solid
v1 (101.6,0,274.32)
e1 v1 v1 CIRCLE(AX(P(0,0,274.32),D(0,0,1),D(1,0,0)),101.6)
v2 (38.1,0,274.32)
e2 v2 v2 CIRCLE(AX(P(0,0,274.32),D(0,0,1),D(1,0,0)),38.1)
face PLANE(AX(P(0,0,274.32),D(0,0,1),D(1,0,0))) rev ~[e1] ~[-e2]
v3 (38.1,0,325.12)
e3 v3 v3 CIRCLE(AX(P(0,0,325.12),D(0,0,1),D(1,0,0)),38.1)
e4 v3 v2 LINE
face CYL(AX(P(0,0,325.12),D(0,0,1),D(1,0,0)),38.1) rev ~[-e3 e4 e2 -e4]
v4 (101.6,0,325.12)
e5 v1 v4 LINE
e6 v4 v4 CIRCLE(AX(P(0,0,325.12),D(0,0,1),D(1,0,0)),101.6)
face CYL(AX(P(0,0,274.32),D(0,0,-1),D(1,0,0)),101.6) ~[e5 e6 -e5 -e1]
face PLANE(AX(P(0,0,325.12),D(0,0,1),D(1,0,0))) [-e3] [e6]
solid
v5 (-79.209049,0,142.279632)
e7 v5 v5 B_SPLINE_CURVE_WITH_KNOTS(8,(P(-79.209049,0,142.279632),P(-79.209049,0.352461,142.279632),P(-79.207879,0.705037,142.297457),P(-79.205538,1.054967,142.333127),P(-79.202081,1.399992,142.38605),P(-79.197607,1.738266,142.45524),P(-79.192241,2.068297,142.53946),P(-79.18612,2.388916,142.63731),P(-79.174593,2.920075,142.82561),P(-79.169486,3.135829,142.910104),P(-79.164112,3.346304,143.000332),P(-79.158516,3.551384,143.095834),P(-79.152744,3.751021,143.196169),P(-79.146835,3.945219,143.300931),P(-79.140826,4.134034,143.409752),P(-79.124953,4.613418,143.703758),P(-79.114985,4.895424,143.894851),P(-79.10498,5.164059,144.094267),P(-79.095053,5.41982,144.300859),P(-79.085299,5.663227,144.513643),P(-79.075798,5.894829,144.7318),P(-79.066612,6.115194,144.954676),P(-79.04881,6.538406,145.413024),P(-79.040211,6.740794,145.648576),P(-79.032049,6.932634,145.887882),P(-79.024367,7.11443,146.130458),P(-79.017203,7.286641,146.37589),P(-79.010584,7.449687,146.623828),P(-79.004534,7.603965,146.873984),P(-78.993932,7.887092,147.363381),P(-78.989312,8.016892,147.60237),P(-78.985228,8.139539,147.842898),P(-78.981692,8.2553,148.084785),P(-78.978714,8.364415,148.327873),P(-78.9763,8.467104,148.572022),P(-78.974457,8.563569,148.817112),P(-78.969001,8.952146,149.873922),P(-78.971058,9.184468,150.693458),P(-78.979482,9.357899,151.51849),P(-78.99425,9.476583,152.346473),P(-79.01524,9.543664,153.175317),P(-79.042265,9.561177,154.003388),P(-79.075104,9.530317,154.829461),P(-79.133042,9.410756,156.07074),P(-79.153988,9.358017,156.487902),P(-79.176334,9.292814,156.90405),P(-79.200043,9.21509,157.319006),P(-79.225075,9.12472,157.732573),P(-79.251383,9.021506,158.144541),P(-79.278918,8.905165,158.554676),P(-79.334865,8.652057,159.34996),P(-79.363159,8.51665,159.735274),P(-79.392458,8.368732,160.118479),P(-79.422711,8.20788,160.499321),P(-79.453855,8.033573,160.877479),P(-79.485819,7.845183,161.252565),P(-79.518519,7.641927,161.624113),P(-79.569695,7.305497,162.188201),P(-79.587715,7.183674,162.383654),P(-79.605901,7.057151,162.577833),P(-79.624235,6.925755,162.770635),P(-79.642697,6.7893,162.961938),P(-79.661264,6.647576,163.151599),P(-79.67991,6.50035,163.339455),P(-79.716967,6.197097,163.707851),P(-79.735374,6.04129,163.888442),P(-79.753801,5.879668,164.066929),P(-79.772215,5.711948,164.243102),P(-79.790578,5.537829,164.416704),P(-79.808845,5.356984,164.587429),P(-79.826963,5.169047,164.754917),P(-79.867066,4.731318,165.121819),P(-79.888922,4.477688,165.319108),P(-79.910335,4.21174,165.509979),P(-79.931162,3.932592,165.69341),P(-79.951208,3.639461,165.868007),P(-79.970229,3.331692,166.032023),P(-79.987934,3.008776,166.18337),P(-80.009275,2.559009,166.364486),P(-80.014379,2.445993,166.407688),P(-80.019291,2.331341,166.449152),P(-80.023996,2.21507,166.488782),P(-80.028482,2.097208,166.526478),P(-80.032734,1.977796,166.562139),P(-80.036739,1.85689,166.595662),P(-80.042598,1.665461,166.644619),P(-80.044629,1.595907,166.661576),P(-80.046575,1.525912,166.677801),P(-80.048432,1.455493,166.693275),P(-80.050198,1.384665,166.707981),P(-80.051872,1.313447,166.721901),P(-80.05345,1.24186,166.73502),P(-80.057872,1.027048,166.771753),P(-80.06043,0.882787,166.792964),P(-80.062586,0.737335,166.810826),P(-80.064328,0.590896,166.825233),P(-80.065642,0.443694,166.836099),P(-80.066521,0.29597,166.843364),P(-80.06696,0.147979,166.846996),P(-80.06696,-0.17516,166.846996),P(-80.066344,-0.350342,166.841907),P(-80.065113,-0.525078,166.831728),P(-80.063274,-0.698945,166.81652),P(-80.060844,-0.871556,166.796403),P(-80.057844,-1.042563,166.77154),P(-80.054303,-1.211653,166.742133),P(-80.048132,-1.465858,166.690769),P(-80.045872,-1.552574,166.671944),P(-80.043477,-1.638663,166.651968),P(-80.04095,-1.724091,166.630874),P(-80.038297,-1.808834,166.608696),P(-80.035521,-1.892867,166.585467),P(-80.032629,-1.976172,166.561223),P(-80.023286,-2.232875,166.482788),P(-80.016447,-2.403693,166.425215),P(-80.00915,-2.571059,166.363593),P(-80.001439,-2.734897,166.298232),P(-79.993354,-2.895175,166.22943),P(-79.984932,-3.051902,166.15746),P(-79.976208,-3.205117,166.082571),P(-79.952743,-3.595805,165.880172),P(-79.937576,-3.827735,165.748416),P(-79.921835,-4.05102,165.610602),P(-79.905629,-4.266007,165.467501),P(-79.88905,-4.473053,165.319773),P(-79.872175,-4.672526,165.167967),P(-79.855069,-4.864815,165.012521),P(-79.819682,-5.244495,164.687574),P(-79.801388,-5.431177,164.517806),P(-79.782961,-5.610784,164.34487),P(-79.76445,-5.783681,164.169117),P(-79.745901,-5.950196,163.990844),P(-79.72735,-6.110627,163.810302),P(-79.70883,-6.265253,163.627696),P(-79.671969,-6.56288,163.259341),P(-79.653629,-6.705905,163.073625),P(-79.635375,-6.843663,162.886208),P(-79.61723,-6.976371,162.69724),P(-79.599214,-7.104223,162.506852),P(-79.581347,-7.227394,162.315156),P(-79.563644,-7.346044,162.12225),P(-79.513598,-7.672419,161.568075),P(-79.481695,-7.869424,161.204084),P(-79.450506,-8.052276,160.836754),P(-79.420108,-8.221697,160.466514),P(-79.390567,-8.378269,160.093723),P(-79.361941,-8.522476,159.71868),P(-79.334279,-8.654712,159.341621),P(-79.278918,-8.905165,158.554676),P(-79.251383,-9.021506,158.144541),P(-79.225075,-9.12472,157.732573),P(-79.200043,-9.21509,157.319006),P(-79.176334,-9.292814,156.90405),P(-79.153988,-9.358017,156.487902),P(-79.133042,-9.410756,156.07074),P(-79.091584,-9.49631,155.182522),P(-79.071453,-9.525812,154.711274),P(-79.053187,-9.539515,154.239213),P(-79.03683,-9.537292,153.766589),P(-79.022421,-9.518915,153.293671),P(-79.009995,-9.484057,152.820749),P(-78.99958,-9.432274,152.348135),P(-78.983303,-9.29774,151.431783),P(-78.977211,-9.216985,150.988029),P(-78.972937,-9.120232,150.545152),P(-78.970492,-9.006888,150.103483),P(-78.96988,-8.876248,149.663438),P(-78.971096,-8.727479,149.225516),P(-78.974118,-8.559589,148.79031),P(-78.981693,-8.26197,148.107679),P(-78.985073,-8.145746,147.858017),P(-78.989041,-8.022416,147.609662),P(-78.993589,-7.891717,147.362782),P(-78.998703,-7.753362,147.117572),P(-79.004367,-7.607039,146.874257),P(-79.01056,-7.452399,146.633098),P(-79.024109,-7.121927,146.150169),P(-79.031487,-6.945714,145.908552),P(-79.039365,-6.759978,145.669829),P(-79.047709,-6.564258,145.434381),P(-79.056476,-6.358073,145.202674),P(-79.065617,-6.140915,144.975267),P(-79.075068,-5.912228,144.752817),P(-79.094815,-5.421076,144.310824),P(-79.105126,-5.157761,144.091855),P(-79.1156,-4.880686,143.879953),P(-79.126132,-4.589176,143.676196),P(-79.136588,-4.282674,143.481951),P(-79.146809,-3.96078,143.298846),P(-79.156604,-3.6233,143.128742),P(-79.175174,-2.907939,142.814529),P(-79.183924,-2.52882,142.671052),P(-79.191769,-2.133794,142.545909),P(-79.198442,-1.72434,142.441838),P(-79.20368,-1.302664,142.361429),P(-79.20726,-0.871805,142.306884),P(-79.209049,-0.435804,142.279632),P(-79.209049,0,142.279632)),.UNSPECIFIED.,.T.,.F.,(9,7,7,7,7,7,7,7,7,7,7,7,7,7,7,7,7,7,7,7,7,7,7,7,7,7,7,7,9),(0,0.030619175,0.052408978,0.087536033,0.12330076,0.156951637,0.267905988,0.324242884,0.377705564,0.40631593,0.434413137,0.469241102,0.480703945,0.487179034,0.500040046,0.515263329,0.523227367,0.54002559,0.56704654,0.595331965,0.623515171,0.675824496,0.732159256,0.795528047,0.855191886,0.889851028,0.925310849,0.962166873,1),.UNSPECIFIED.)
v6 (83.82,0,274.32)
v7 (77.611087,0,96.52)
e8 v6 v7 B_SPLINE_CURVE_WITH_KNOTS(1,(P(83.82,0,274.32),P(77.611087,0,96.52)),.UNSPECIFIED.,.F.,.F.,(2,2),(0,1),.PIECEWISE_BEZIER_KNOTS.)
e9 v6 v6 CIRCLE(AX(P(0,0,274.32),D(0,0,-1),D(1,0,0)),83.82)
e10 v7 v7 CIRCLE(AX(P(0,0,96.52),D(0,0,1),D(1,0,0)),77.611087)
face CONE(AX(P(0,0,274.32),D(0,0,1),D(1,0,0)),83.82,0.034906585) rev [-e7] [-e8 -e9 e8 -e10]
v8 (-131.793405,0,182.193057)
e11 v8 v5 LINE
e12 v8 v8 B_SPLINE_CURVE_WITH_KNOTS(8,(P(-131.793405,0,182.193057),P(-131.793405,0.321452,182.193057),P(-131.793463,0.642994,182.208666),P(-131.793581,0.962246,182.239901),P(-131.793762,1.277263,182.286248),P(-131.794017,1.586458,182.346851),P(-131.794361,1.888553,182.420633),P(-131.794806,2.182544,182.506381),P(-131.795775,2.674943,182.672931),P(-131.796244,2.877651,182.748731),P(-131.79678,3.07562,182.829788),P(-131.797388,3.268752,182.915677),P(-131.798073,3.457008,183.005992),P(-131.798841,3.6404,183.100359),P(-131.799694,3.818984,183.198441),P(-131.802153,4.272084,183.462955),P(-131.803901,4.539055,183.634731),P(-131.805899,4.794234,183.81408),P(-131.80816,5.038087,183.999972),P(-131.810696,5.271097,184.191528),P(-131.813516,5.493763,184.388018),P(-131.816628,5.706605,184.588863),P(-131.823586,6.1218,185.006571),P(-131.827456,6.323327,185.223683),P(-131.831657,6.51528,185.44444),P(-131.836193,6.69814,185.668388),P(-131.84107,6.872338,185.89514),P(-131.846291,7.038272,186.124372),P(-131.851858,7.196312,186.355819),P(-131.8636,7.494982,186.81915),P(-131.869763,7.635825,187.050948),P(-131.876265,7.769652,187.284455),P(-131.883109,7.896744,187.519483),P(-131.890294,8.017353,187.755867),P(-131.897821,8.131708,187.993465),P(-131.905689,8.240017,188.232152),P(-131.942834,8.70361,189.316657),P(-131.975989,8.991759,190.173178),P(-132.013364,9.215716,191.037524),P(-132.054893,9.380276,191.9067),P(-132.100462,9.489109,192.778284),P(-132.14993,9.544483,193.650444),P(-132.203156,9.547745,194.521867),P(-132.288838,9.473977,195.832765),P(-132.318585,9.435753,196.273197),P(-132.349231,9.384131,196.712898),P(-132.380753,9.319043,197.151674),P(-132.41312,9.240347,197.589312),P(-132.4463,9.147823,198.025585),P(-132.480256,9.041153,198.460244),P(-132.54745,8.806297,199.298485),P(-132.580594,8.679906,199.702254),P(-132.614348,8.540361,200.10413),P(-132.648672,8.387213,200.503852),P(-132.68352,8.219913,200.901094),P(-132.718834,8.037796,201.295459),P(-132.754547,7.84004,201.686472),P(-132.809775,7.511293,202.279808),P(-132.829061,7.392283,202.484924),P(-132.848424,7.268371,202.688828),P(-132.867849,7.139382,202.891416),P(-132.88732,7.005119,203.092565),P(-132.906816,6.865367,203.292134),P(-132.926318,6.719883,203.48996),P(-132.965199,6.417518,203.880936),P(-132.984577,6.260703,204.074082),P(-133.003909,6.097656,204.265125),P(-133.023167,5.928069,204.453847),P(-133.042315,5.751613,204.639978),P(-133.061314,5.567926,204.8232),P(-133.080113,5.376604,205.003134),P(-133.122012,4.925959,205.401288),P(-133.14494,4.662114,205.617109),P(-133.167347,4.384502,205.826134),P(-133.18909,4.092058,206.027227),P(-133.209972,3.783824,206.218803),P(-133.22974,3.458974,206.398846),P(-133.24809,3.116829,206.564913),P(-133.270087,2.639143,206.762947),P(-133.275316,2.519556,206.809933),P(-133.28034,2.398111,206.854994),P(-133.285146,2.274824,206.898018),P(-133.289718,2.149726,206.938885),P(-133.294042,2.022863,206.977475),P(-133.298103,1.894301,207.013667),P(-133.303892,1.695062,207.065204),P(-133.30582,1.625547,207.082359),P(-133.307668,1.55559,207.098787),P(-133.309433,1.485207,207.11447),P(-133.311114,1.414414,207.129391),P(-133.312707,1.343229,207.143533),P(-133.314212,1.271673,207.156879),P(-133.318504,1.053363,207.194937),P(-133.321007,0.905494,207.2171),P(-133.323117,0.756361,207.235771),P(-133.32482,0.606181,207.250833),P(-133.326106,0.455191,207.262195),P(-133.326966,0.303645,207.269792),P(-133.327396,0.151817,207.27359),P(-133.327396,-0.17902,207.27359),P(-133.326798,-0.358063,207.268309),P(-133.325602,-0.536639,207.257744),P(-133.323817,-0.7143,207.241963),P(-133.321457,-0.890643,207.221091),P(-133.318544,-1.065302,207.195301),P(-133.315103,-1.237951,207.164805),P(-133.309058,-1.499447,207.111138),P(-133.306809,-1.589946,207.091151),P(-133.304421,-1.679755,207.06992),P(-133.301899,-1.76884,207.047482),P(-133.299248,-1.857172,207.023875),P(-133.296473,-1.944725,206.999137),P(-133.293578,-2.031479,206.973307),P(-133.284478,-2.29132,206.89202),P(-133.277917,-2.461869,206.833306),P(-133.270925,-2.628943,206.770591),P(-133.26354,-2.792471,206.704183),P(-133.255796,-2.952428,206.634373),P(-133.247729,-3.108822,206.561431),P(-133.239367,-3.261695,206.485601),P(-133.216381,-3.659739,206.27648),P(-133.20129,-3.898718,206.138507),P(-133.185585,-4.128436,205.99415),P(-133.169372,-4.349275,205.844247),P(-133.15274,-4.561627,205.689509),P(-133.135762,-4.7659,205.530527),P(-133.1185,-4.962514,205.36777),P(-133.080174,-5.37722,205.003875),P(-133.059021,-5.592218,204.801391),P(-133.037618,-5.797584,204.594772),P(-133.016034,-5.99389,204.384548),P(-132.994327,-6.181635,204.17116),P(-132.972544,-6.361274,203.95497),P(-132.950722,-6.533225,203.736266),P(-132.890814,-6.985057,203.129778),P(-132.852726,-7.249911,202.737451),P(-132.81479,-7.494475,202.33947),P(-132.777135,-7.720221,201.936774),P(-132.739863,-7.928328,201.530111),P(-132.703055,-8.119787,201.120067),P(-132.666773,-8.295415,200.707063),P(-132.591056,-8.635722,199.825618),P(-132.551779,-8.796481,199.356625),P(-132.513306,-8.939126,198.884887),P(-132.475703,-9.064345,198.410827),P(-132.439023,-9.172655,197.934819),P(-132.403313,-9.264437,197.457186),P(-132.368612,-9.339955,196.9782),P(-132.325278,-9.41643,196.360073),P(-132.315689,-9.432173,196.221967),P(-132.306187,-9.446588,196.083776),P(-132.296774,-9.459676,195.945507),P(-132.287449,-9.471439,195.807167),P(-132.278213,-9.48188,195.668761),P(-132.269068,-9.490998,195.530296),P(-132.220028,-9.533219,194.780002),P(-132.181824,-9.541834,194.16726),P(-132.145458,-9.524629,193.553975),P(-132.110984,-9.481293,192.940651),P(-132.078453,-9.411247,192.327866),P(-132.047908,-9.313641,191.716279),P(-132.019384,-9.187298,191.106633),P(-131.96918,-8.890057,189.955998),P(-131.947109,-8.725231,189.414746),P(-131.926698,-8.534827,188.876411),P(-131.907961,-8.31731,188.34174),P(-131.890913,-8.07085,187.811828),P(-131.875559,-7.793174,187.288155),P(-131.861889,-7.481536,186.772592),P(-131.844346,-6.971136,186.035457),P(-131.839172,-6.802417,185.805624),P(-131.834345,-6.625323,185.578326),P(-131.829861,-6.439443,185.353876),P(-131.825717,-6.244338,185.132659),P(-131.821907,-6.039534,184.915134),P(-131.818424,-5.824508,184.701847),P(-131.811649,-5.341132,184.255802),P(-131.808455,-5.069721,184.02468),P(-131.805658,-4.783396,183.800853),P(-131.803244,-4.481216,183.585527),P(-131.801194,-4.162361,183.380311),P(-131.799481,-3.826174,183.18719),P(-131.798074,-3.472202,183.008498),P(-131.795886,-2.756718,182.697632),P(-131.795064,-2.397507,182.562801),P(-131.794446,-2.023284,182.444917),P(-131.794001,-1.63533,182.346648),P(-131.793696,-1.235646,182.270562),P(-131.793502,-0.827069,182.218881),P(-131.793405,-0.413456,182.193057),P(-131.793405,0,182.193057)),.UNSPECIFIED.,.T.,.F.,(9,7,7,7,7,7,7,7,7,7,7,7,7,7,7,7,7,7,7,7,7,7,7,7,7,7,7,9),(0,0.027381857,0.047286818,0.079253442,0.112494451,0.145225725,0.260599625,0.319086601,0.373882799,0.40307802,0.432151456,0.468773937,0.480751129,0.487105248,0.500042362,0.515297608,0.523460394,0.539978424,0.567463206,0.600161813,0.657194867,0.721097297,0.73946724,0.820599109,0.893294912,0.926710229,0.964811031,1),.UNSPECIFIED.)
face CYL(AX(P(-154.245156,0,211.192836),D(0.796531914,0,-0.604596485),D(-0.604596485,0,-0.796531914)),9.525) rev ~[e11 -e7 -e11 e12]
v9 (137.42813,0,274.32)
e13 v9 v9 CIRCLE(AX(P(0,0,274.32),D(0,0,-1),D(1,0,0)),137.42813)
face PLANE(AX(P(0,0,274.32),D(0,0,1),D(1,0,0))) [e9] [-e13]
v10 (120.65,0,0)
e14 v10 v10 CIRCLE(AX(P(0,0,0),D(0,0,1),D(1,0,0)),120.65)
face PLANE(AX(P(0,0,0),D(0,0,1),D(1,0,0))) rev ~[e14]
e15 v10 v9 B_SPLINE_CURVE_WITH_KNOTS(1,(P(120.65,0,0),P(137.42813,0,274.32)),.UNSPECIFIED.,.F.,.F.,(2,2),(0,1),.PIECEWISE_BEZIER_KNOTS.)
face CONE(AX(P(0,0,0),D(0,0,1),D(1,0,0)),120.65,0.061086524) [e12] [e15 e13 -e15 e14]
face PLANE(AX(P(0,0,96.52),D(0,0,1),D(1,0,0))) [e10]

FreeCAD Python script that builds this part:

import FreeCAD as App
import Part
import Sketcher
Q = App.Units.Quantity

doc = App.newDocument("Part")
body = doc.addObject("PartDesign::Body", "Body")

sketch1 = body.newObject("Sketcher::SketchObject", "Sketch")
sketch1.AttachmentSupport = (doc.getObject("XY_Plane"), [""])
sketch1.MapMode = "FlatFace"
sketch1.addGeometry(Part.Circle(App.Vector(0, 0, 0), App.Vector(0, 0, 1), 121), False)
sketch1.addConstraint([
    Sketcher.Constraint("Coincident", 0, 3, -1, 1),
    Sketcher.Constraint("Diameter", 0, Q("9.5 in")),
])
pad1 = body.newObject("PartDesign::Pad", "Pad")
pad1.Profile = sketch1
pad1.Length = Q("10.8 in")
pad1.TaperAngle = 3.5

sketch2 = body.newObject("Sketcher::SketchObject", "Sketch001")
sketch2.AttachmentSupport = (doc.getObject("XY_Plane"), [""])
sketch2.MapMode = "FlatFace"
sketch2.AttachmentOffset = App.Placement(App.Vector(0, 0, 10.8 * 25.4), App.Rotation())
sketch2.addGeometry(Part.Circle(App.Vector(0, 0, 0), App.Vector(0, 0, 1), 84), False)
sketch2.addConstraint([
    Sketcher.Constraint("Coincident", 0, 3, -1, 1),
    Sketcher.Constraint("Diameter", 0, Q("6.6 in")),
])
pocket1 = body.newObject("PartDesign::Pocket", "Pocket")
pocket1.Profile = sketch2
pocket1.Length = Q("7 in")
pocket1.TaperAngle = -2

sketch3 = body.newObject("Sketcher::SketchObject", "Sketch002")
sketch3.AttachmentSupport = (doc.getObject("XZ_Plane"), [""])
sketch3.MapMode = "FlatFace"
sketch3.addGeometry([
    Part.LineSegment(App.Vector(-154, 211, 0), App.Vector(-160, 204, 0)),
    Part.LineSegment(App.Vector(-160, 204, 0), App.Vector(-39, 111, 0)),
    Part.LineSegment(App.Vector(-39, 111, 0), App.Vector(-33, 119, 0)),
    Part.LineSegment(App.Vector(-33, 119, 0), App.Vector(-154, 211, 0)),
], False)
sketch3.addGeometry(Part.LineSegment(App.Vector(-154, 211, 0), App.Vector(-33, 119, 0)), True)
sketch3.addConstraint([
    Sketcher.Constraint("Coincident", 0, 2, 1, 1),
    Sketcher.Constraint("Coincident", 1, 2, 2, 1),
    Sketcher.Constraint("Coincident", 2, 2, 3, 1),
    Sketcher.Constraint("Coincident", 3, 2, 0, 1),
    Sketcher.Constraint("Coincident", 4, 1, 3, 2),
    Sketcher.Constraint("Coincident", 4, 2, 2, 2),
    Sketcher.Constraint("Perpendicular", 0, 1),
    Sketcher.Constraint("Perpendicular", 1, 2),
    Sketcher.Constraint("Perpendicular", 2, 3),
    Sketcher.Constraint("Distance", 1, Q("6 in")),
    Sketcher.Constraint("Distance", 0, Q("0.375 in")),
    Sketcher.Constraint("DistanceY", -1, 1, 0, 2, Q("203.60587 mm")),
    Sketcher.Constraint("DistanceY", -1, 1, 2, 2, Q("119.052332 mm")),
    Sketcher.Constraint("DistanceX", 0, 2, -1, 1, Q("160.003938 mm")),
])
groove = body.newObject("PartDesign::Groove", "Groove")
groove.Profile = sketch3
groove.ReferenceAxis = (sketch3, ["Axis0"])
groove.Angle = 360
body2 = doc.addObject("PartDesign::Body", "Body001")

sketch4 = body2.newObject("Sketcher::SketchObject", "Sketch003")
sketch4.AttachmentSupport = (doc.getObject("XY_Plane001"), [""])
sketch4.MapMode = "FlatFace"
sketch4.AttachmentOffset = App.Placement(App.Vector(0, 0, 10.8 * 25.4), App.Rotation())
sketch4.addGeometry(Part.Circle(App.Vector(0, 0, 0), App.Vector(0, 0, 1), 102), False)
sketch4.addConstraint([
    Sketcher.Constraint("Coincident", 0, 3, -1, 1),
    Sketcher.Constraint("Diameter", 0, Q("8 in")),
])
pad2 = body2.newObject("PartDesign::Pad", "Pad001")
pad2.Profile = sketch4
pad2.Length = Q("2 in")

sketch5 = body2.newObject("Sketcher::SketchObject", "Sketch004")
sketch5.AttachmentSupport = (doc.getObject("XY_Plane001"), [""])
sketch5.MapMode = "FlatFace"
sketch5.AttachmentOffset = App.Placement(App.Vector(0, 0, 12.8 * 25.4), App.Rotation())
sketch5.addGeometry(Part.Circle(App.Vector(0, 0, 0), App.Vector(0, 0, 1), 38), False)
sketch5.addConstraint([
    Sketcher.Constraint("Coincident", 0, 3, -1, 1),
    Sketcher.Constraint("Diameter", 0, Q("3 in")),
])
pocket2 = body2.newObject("PartDesign::Pocket", "Pocket001")
pocket2.Profile = sketch5
pocket2.Length = Q("2 in")

doc.recompute()
